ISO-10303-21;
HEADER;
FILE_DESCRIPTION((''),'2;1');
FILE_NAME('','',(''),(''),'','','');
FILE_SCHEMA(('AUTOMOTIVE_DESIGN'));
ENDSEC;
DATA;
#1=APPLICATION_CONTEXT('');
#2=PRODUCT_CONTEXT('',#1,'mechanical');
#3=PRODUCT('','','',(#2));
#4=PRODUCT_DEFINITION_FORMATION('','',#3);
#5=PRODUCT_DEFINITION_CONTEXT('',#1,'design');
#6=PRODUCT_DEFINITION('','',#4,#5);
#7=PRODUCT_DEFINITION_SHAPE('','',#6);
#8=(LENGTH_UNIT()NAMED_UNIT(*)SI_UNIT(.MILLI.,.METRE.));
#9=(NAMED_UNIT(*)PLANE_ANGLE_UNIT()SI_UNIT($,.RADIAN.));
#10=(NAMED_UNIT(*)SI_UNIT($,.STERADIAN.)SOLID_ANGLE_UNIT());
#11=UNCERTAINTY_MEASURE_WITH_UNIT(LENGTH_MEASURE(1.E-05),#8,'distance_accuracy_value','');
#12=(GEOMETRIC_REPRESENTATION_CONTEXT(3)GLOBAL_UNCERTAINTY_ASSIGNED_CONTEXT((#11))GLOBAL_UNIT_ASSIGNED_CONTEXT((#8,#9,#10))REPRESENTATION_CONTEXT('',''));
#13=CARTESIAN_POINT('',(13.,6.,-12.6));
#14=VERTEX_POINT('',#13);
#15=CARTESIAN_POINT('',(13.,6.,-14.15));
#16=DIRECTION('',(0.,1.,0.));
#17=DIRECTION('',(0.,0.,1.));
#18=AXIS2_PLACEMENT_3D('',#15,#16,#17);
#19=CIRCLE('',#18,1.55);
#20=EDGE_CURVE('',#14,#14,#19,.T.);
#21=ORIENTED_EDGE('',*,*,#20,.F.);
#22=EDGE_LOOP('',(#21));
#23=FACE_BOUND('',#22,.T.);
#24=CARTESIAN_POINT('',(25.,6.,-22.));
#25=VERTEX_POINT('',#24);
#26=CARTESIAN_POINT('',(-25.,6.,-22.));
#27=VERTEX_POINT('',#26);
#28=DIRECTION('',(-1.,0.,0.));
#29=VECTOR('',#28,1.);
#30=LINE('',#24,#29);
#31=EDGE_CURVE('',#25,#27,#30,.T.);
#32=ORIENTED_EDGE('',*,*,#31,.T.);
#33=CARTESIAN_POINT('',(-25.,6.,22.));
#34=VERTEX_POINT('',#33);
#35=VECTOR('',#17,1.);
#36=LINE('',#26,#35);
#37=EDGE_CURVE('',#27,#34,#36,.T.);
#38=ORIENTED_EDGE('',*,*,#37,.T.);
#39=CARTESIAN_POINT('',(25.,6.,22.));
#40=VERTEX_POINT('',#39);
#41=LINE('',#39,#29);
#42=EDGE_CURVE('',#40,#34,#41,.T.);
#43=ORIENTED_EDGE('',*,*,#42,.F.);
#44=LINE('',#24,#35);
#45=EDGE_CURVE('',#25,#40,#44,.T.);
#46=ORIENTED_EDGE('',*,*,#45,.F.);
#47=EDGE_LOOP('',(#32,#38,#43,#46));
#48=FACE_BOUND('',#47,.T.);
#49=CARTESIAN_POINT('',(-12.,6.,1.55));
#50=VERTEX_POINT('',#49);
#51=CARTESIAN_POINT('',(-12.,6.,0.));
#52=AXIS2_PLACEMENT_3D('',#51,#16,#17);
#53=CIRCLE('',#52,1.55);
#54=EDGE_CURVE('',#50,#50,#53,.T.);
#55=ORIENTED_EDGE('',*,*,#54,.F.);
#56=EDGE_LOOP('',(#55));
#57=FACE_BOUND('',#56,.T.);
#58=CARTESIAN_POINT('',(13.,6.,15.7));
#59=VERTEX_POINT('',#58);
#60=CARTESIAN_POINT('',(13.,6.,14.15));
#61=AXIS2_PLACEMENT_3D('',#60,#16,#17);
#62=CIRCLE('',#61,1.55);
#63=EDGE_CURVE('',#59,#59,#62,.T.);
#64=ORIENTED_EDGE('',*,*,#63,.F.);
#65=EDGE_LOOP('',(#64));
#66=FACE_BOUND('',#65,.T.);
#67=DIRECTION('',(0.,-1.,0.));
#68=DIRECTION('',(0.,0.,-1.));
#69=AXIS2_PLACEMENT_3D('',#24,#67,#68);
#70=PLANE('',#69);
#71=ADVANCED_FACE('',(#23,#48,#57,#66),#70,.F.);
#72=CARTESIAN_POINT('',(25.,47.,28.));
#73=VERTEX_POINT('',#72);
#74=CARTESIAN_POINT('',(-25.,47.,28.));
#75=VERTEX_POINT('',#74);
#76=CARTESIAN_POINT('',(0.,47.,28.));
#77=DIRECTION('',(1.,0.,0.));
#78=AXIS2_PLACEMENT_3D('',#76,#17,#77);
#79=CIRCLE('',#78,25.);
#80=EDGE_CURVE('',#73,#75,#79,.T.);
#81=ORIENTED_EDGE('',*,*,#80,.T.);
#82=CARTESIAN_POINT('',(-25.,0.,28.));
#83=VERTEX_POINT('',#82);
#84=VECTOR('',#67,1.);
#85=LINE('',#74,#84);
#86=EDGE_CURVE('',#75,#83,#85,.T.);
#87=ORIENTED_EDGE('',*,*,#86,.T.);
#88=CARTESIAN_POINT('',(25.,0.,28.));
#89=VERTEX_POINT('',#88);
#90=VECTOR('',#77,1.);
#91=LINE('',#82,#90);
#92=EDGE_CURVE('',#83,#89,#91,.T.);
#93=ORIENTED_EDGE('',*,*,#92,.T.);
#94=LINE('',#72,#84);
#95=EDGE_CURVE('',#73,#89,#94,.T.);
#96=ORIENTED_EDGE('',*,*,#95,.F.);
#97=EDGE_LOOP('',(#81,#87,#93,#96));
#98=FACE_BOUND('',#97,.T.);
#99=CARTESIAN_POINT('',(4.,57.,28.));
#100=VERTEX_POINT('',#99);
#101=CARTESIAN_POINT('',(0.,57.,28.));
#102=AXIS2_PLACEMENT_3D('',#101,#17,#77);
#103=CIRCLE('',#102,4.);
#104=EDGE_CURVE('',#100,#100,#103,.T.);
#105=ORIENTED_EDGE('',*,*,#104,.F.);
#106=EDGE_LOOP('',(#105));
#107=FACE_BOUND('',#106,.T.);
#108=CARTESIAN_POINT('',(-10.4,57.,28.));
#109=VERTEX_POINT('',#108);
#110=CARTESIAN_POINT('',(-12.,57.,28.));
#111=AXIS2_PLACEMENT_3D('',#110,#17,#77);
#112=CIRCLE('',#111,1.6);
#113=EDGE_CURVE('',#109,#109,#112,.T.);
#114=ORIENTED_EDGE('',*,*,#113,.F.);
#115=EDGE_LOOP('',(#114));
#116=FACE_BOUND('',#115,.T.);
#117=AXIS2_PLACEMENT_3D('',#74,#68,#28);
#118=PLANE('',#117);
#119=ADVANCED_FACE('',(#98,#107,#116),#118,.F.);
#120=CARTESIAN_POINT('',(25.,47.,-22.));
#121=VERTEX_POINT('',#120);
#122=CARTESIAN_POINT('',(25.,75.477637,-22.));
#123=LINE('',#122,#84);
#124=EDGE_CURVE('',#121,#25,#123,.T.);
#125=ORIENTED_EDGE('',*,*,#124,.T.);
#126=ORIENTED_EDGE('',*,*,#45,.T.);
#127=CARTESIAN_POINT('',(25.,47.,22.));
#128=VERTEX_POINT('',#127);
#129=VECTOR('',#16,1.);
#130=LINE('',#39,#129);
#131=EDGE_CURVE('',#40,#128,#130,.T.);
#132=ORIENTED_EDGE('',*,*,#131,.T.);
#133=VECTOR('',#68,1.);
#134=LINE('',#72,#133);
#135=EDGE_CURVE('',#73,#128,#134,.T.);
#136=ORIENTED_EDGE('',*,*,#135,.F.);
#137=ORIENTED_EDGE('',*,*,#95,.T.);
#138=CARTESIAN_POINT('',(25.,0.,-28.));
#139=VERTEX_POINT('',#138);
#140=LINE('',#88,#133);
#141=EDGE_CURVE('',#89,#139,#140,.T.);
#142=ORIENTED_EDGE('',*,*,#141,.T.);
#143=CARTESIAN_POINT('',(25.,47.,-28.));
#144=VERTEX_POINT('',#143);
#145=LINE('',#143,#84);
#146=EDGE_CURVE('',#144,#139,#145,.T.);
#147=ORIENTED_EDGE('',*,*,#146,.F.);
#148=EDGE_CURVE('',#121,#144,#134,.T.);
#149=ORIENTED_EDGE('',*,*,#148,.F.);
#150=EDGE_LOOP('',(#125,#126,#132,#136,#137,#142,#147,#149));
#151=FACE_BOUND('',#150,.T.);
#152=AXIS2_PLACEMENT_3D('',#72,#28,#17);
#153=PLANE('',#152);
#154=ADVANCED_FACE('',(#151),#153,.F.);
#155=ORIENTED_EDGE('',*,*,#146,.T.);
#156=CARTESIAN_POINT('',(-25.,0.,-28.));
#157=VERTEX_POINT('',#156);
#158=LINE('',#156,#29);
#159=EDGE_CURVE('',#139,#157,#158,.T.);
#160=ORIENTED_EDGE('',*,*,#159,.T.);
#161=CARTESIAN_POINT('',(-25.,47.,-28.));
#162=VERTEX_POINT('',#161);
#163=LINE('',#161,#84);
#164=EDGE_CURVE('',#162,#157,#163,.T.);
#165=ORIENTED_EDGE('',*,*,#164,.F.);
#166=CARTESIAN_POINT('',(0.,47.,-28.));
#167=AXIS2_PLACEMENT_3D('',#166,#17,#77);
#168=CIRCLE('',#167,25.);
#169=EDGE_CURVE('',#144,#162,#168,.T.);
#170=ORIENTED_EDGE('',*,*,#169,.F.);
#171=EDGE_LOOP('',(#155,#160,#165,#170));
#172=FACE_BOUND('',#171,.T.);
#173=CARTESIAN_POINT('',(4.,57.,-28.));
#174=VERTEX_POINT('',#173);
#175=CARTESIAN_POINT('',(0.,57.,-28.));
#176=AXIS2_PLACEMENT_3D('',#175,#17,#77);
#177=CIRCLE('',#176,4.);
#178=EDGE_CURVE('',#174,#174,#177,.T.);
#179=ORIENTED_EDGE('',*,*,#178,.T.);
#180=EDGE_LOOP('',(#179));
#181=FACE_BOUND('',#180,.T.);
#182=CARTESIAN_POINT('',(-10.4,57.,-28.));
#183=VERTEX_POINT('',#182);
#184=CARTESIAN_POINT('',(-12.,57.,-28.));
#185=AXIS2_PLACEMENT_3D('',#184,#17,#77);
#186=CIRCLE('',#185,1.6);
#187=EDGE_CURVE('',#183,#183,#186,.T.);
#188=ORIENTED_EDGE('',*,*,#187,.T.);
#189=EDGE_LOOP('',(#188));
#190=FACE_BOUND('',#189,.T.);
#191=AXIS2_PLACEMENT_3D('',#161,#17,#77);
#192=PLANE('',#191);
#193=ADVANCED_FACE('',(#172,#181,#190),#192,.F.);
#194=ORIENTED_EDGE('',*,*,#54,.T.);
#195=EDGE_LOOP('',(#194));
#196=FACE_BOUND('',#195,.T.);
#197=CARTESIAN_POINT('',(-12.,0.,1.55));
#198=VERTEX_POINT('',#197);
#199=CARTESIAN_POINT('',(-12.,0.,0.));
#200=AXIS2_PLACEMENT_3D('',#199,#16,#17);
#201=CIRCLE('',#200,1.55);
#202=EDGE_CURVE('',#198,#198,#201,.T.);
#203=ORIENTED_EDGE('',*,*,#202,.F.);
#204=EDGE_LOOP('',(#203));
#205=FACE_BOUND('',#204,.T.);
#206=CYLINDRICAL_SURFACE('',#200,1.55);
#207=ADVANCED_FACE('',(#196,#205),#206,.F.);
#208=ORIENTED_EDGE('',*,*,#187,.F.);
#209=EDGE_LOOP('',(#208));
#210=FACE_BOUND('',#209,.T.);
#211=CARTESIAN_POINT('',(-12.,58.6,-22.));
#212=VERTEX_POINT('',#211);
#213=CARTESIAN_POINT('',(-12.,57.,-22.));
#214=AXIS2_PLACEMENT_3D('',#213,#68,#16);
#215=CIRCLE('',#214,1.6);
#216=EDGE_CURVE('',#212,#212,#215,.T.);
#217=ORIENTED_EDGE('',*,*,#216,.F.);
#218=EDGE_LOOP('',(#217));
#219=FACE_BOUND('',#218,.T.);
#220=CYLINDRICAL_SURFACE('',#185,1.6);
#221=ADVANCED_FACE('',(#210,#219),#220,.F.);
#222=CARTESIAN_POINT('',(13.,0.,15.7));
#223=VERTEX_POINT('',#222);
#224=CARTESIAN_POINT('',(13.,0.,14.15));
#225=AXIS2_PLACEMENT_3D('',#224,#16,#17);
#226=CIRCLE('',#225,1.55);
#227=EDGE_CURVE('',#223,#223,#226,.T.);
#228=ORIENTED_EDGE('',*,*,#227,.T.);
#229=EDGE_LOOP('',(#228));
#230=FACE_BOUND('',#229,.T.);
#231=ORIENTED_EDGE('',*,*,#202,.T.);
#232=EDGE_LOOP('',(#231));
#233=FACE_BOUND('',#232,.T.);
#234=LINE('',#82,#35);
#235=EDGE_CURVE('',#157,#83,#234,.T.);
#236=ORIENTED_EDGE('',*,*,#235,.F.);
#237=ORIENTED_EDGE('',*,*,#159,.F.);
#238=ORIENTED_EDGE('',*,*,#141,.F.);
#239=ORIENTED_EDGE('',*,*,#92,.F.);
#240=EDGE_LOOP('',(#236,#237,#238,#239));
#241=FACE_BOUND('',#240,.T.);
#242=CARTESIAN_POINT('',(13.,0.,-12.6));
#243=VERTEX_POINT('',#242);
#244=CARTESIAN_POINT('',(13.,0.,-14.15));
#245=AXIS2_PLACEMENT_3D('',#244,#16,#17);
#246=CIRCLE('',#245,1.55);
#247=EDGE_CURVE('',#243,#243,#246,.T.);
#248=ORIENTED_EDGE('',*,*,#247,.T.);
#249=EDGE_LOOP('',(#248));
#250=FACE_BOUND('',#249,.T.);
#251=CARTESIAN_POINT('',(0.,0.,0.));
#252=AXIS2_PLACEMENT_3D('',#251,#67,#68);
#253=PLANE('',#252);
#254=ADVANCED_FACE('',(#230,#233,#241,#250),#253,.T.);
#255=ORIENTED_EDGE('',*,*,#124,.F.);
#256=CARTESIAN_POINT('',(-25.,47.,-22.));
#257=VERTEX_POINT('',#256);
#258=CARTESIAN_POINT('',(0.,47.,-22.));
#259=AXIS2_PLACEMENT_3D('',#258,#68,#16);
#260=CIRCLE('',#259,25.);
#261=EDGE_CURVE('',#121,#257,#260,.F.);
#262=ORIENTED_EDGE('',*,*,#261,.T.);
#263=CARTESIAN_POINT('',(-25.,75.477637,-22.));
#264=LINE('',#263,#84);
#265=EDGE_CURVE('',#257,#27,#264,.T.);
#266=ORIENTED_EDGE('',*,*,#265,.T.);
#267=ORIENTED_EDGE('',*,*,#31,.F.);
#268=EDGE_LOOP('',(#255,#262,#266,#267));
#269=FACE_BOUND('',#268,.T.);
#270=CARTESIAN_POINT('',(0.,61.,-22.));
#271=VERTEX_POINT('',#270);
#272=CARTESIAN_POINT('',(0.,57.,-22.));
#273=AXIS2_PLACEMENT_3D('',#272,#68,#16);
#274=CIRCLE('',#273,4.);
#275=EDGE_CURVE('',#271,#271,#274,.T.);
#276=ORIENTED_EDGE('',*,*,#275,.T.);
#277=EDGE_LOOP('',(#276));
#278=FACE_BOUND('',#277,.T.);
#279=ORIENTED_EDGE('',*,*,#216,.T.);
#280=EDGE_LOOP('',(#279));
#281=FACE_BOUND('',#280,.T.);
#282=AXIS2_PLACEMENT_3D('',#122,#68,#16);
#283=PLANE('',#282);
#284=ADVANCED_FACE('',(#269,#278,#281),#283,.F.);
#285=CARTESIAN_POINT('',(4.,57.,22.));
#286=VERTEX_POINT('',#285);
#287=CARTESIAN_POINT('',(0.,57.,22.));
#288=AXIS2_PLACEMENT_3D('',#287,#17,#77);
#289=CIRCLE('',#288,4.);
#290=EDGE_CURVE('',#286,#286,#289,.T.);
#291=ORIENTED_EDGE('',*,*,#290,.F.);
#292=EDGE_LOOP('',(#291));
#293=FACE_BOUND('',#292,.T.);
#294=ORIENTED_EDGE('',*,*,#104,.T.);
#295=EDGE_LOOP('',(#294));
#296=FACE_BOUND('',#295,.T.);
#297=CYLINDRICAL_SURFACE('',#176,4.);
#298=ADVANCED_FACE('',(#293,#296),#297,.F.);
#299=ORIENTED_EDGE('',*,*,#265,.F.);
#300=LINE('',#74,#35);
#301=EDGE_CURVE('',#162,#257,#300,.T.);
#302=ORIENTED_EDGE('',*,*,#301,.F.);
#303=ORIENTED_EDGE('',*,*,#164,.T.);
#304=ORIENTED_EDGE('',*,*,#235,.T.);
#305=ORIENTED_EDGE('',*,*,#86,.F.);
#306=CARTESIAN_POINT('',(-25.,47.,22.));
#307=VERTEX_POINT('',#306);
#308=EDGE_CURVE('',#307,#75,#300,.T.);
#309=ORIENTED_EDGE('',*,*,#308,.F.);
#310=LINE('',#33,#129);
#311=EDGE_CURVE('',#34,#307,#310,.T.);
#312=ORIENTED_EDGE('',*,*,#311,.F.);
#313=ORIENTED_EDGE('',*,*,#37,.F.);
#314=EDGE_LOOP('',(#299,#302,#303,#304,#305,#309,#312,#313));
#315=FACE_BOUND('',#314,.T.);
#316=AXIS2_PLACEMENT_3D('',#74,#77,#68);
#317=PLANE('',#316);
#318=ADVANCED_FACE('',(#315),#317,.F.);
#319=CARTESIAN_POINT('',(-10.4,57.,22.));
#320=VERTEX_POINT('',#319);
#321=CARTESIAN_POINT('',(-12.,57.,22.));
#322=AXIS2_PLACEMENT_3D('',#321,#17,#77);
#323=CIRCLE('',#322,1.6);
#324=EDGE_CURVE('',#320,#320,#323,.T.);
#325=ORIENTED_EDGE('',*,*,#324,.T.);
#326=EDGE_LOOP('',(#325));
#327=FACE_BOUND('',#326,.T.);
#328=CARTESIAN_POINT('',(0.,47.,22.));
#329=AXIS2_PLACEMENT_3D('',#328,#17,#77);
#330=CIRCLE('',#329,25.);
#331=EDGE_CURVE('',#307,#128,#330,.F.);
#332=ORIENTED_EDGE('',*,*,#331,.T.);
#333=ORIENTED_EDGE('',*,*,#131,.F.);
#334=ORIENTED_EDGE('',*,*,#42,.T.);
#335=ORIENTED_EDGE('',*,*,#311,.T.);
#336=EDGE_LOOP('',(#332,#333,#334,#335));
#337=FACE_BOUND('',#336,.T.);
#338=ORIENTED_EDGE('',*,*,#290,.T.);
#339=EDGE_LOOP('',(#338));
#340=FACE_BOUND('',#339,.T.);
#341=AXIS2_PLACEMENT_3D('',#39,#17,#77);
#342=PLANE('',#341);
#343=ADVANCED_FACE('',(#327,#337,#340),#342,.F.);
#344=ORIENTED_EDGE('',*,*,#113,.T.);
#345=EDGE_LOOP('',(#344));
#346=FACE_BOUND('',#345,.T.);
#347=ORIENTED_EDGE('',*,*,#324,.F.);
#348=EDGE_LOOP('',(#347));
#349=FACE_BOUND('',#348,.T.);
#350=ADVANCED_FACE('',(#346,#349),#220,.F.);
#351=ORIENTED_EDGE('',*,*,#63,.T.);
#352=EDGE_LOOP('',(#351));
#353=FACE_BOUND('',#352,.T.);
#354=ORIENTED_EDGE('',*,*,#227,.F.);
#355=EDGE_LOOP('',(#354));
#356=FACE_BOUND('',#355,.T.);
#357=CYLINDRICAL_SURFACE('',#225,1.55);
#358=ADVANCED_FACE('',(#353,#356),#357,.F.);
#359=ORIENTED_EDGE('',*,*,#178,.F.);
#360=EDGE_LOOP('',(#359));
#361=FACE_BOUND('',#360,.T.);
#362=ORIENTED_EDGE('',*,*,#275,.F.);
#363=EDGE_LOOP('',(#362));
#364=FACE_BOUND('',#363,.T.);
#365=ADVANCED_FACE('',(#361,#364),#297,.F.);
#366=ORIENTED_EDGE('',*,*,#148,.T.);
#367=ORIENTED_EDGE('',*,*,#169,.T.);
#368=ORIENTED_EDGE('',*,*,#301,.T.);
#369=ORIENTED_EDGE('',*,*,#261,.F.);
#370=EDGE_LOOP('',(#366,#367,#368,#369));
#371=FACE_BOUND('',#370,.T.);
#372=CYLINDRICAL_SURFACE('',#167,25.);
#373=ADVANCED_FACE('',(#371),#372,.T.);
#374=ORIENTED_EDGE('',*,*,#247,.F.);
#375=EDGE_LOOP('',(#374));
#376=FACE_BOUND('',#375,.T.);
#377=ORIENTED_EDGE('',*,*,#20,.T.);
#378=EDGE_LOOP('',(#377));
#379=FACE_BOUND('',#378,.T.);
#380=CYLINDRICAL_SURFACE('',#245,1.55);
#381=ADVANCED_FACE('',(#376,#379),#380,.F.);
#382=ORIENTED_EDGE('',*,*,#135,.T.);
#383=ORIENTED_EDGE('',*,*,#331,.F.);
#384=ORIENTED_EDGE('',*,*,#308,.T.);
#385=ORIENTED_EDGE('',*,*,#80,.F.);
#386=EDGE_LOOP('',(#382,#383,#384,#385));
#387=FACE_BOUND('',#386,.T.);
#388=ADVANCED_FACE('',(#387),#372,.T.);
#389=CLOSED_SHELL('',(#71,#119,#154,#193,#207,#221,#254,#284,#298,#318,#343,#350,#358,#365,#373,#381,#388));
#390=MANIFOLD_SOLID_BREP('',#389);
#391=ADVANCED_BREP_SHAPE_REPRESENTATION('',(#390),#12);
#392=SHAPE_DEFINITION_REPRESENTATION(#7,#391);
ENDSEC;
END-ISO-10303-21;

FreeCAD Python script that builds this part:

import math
import FreeCAD as App
import Part
import Sketcher
from FreeCAD import Vector

doc = App.newDocument("Part")
body = doc.addObject("PartDesign::Body", "Body")

sketch1 = doc.addObject("Sketcher::SketchObject", "Sketch")
body.addObject(sketch1)
sketch1.AttachmentSupport = (doc.XZ_Plane, [""])
sketch1.MapMode = "FlatFace"
sketch1.addGeometry(Part.LineSegment(Vector(-25, -28, 0), Vector(-25, 28, 0)), False)
sketch1.addGeometry(Part.LineSegment(Vector(-25, 28, 0), Vector(25, 28, 0)), False)
sketch1.addGeometry(Part.LineSegment(Vector(25, 28, 0), Vector(25, -28, 0)), False)
sketch1.addGeometry(Part.LineSegment(Vector(25, -28, 0), Vector(-25, -28, 0)), False)
sketch1.addConstraint(Sketcher.Constraint("Coincident", 0, 2, 1, 1))
sketch1.addConstraint(Sketcher.Constraint("Coincident", 1, 2, 2, 1))
sketch1.addConstraint(Sketcher.Constraint("Coincident", 2, 2, 3, 1))
sketch1.addConstraint(Sketcher.Constraint("Coincident", 3, 2, 0, 1))
sketch1.addConstraint(Sketcher.Constraint("Vertical", 0))
sketch1.addConstraint(Sketcher.Constraint("Horizontal", 1))
sketch1.addConstraint(Sketcher.Constraint("Vertical", 2))
sketch1.addConstraint(Sketcher.Constraint("Horizontal", 3))
sketch1.addConstraint(Sketcher.Constraint("Symmetric", 0, 2, 2, 2, -1, 1))
sketch1.addConstraint(Sketcher.Constraint("DistanceX", 1, 1, 1, 2, 50.0))
sketch1.addConstraint(Sketcher.Constraint("DistanceY", 0, 1, 0, 2, 56.0))
pad1 = doc.addObject("PartDesign::Pad", "Pad")
body.addObject(pad1)
pad1.Profile = sketch1
pad1.Length = 47
pad1.Reversed = True

sketch2 = doc.addObject("Sketcher::SketchObject", "Sketch001")
body.addObject(sketch2)
sketch2.AttachmentSupport = (doc.XY_Plane, [""])
sketch2.MapMode = "FlatFace"
sketch2.AttachmentOffset = App.Placement(Vector(0, 0, 28), App.Rotation())
sketch2.addGeometry(Part.LineSegment(Vector(-25, 47, 0), Vector(25, 47, 0)), False)
sketch2.addGeometry(Part.ArcOfCircle(Part.Circle(Vector(0, 47, 0), Vector(0, 0, 1), 25), math.radians(0), math.radians(180)), False)
sketch2.addConstraint(Sketcher.Constraint("Coincident", 0, 1, 1, 2))
sketch2.addConstraint(Sketcher.Constraint("Coincident", 1, 1, 0, 2))
sketch2.addConstraint(Sketcher.Constraint("Horizontal", 0))
sketch2.addConstraint(Sketcher.Constraint("PointOnObject", 1, 3, -2))
sketch2.addConstraint(Sketcher.Constraint("Horizontal", 1, 3, 0, 1))
sketch2.addConstraint(Sketcher.Constraint("Radius", 1, 25.0))
sketch2.addConstraint(Sketcher.Constraint("DistanceY", -1, 1, 1, 3, 47.0))
pad2 = doc.addObject("PartDesign::Pad", "Pad001")
body.addObject(pad2)
pad2.Profile = sketch2
pad2.Length = 56
pad2.Reversed = True

sketch3 = doc.addObject("Sketcher::SketchObject", "Sketch002")
body.addObject(sketch3)
sketch3.AttachmentSupport = (doc.YZ_Plane, [""])
sketch3.MapMode = "FlatFace"
sketch3.AttachmentOffset = App.Placement(Vector(0, 0, -25), App.Rotation())
sketch3.addGeometry(Part.LineSegment(Vector(75, -22, 0), Vector(6, -22, 0)), False)
sketch3.addGeometry(Part.LineSegment(Vector(6, -22, 0), Vector(6, 22, 0)), False)
sketch3.addGeometry(Part.LineSegment(Vector(6, 22, 0), Vector(75, 22, 0)), False)
sketch3.addGeometry(Part.LineSegment(Vector(75, 22, 0), Vector(75, -22, 0)), False)
sketch3.addConstraint(Sketcher.Constraint("Coincident", 0, 2, 1, 1))
sketch3.addConstraint(Sketcher.Constraint("Coincident", 1, 2, 2, 1))
sketch3.addConstraint(Sketcher.Constraint("Coincident", 2, 2, 3, 1))
sketch3.addConstraint(Sketcher.Constraint("Coincident", 3, 2, 0, 1))
sketch3.addConstraint(Sketcher.Constraint("Horizontal", 0))
sketch3.addConstraint(Sketcher.Constraint("Vertical", 1))
sketch3.addConstraint(Sketcher.Constraint("Horizontal", 2))
sketch3.addConstraint(Sketcher.Constraint("Vertical", 3))
sketch3.addConstraint(Sketcher.Constraint("DistanceY", 1, 1, 1, 2, 44.0))
sketch3.addConstraint(Sketcher.Constraint("DistanceX", -1, 1, 0, 2, 6.0))
sketch3.addConstraint(Sketcher.Constraint("DistanceY", 0, 2, -1, 1, 22.0))
sketch3.addConstraint(Sketcher.Constraint("DistanceX", 0, 2, 0, 1, 69.477637))
pocket1 = doc.addObject("PartDesign::Pocket", "Pocket")
body.addObject(pocket1)
pocket1.Profile = sketch3
pocket1.Type = "ThroughAll"
pocket1.Reversed = True

sketch4 = doc.addObject("Sketcher::SketchObject", "Sketch003")
body.addObject(sketch4)
sketch4.AttachmentSupport = (doc.XY_Plane, [""])
sketch4.MapMode = "FlatFace"
sketch4.AttachmentOffset = App.Placement(Vector(0, 0, 28), App.Rotation())
sketch4.addGeometry(Part.Circle(Vector(0, 57, 0), Vector(0, 0, 1), 4), False)
sketch4.addGeometry(Part.Circle(Vector(-12, 57, 0), Vector(0, 0, 1), 1.6), False)
sketch4.addConstraint(Sketcher.Constraint("PointOnObject", 0, 3, -2))
sketch4.addConstraint(Sketcher.Constraint("Horizontal", 0, 3, 1, 3))
sketch4.addConstraint(Sketcher.Constraint("Diameter", 0, 8.0))
sketch4.addConstraint(Sketcher.Constraint("Diameter", 1, 3.2))
sketch4.addConstraint(Sketcher.Constraint("DistanceY", -1, 1, 0, 3, 57.0))
sketch4.addConstraint(Sketcher.Constraint("DistanceX", 1, 3, -1, 1, 12.0))
pocket2 = doc.addObject("PartDesign::Pocket", "Pocket001")
body.addObject(pocket2)
pocket2.Profile = sketch4
pocket2.Type = "ThroughAll"

sketch5 = doc.addObject("Sketcher::SketchObject", "Sketch004")
body.addObject(sketch5)
sketch5.AttachmentSupport = (doc.XZ_Plane, [""])
sketch5.MapMode = "FlatFace"
sketch5.AttachmentOffset = App.Placement(Vector(0, 0, -6), App.Rotation())
sketch5.addGeometry(Part.Circle(Vector(13, 14.2, 0), Vector(0, 0, 1), 1.6), False)
sketch5.addGeometry(Part.Circle(Vector(13, -14.2, 0), Vector(0, 0, 1), 1.6), False)
sketch5.addGeometry(Part.Circle(Vector(-12, 0, 0), Vector(0, 0, 1), 1.6), False)
sketch5.addConstraint(Sketcher.Constraint("Equal", 0, 1))
sketch5.addConstraint(Sketcher.Constraint("Equal", 1, 2))
sketch5.addConstraint(Sketcher.Constraint("Symmetric", 0, 3, 1, 3, -1))
sketch5.addConstraint(Sketcher.Constraint("PointOnObject", 2, 3, -1))
sketch5.addConstraint(Sketcher.Constraint("Diameter", 0, 3.1))
sketch5.addConstraint(Sketcher.Constraint("DistanceX", -1, 1, 0, 3, 13.0))
sketch5.addConstraint(Sketcher.Constraint("DistanceX", 2, 3, -1, 1, 12.0))
sketch5.addConstraint(Sketcher.Constraint("DistanceY", 1, 3, 0, 3, 28.3))
pocket3 = doc.addObject("PartDesign::Pocket", "Pocket002")
body.addObject(pocket3)
pocket3.Profile = sketch5
pocket3.Type = "ThroughAll"
pocket3.Reversed = True

doc.recompute()
